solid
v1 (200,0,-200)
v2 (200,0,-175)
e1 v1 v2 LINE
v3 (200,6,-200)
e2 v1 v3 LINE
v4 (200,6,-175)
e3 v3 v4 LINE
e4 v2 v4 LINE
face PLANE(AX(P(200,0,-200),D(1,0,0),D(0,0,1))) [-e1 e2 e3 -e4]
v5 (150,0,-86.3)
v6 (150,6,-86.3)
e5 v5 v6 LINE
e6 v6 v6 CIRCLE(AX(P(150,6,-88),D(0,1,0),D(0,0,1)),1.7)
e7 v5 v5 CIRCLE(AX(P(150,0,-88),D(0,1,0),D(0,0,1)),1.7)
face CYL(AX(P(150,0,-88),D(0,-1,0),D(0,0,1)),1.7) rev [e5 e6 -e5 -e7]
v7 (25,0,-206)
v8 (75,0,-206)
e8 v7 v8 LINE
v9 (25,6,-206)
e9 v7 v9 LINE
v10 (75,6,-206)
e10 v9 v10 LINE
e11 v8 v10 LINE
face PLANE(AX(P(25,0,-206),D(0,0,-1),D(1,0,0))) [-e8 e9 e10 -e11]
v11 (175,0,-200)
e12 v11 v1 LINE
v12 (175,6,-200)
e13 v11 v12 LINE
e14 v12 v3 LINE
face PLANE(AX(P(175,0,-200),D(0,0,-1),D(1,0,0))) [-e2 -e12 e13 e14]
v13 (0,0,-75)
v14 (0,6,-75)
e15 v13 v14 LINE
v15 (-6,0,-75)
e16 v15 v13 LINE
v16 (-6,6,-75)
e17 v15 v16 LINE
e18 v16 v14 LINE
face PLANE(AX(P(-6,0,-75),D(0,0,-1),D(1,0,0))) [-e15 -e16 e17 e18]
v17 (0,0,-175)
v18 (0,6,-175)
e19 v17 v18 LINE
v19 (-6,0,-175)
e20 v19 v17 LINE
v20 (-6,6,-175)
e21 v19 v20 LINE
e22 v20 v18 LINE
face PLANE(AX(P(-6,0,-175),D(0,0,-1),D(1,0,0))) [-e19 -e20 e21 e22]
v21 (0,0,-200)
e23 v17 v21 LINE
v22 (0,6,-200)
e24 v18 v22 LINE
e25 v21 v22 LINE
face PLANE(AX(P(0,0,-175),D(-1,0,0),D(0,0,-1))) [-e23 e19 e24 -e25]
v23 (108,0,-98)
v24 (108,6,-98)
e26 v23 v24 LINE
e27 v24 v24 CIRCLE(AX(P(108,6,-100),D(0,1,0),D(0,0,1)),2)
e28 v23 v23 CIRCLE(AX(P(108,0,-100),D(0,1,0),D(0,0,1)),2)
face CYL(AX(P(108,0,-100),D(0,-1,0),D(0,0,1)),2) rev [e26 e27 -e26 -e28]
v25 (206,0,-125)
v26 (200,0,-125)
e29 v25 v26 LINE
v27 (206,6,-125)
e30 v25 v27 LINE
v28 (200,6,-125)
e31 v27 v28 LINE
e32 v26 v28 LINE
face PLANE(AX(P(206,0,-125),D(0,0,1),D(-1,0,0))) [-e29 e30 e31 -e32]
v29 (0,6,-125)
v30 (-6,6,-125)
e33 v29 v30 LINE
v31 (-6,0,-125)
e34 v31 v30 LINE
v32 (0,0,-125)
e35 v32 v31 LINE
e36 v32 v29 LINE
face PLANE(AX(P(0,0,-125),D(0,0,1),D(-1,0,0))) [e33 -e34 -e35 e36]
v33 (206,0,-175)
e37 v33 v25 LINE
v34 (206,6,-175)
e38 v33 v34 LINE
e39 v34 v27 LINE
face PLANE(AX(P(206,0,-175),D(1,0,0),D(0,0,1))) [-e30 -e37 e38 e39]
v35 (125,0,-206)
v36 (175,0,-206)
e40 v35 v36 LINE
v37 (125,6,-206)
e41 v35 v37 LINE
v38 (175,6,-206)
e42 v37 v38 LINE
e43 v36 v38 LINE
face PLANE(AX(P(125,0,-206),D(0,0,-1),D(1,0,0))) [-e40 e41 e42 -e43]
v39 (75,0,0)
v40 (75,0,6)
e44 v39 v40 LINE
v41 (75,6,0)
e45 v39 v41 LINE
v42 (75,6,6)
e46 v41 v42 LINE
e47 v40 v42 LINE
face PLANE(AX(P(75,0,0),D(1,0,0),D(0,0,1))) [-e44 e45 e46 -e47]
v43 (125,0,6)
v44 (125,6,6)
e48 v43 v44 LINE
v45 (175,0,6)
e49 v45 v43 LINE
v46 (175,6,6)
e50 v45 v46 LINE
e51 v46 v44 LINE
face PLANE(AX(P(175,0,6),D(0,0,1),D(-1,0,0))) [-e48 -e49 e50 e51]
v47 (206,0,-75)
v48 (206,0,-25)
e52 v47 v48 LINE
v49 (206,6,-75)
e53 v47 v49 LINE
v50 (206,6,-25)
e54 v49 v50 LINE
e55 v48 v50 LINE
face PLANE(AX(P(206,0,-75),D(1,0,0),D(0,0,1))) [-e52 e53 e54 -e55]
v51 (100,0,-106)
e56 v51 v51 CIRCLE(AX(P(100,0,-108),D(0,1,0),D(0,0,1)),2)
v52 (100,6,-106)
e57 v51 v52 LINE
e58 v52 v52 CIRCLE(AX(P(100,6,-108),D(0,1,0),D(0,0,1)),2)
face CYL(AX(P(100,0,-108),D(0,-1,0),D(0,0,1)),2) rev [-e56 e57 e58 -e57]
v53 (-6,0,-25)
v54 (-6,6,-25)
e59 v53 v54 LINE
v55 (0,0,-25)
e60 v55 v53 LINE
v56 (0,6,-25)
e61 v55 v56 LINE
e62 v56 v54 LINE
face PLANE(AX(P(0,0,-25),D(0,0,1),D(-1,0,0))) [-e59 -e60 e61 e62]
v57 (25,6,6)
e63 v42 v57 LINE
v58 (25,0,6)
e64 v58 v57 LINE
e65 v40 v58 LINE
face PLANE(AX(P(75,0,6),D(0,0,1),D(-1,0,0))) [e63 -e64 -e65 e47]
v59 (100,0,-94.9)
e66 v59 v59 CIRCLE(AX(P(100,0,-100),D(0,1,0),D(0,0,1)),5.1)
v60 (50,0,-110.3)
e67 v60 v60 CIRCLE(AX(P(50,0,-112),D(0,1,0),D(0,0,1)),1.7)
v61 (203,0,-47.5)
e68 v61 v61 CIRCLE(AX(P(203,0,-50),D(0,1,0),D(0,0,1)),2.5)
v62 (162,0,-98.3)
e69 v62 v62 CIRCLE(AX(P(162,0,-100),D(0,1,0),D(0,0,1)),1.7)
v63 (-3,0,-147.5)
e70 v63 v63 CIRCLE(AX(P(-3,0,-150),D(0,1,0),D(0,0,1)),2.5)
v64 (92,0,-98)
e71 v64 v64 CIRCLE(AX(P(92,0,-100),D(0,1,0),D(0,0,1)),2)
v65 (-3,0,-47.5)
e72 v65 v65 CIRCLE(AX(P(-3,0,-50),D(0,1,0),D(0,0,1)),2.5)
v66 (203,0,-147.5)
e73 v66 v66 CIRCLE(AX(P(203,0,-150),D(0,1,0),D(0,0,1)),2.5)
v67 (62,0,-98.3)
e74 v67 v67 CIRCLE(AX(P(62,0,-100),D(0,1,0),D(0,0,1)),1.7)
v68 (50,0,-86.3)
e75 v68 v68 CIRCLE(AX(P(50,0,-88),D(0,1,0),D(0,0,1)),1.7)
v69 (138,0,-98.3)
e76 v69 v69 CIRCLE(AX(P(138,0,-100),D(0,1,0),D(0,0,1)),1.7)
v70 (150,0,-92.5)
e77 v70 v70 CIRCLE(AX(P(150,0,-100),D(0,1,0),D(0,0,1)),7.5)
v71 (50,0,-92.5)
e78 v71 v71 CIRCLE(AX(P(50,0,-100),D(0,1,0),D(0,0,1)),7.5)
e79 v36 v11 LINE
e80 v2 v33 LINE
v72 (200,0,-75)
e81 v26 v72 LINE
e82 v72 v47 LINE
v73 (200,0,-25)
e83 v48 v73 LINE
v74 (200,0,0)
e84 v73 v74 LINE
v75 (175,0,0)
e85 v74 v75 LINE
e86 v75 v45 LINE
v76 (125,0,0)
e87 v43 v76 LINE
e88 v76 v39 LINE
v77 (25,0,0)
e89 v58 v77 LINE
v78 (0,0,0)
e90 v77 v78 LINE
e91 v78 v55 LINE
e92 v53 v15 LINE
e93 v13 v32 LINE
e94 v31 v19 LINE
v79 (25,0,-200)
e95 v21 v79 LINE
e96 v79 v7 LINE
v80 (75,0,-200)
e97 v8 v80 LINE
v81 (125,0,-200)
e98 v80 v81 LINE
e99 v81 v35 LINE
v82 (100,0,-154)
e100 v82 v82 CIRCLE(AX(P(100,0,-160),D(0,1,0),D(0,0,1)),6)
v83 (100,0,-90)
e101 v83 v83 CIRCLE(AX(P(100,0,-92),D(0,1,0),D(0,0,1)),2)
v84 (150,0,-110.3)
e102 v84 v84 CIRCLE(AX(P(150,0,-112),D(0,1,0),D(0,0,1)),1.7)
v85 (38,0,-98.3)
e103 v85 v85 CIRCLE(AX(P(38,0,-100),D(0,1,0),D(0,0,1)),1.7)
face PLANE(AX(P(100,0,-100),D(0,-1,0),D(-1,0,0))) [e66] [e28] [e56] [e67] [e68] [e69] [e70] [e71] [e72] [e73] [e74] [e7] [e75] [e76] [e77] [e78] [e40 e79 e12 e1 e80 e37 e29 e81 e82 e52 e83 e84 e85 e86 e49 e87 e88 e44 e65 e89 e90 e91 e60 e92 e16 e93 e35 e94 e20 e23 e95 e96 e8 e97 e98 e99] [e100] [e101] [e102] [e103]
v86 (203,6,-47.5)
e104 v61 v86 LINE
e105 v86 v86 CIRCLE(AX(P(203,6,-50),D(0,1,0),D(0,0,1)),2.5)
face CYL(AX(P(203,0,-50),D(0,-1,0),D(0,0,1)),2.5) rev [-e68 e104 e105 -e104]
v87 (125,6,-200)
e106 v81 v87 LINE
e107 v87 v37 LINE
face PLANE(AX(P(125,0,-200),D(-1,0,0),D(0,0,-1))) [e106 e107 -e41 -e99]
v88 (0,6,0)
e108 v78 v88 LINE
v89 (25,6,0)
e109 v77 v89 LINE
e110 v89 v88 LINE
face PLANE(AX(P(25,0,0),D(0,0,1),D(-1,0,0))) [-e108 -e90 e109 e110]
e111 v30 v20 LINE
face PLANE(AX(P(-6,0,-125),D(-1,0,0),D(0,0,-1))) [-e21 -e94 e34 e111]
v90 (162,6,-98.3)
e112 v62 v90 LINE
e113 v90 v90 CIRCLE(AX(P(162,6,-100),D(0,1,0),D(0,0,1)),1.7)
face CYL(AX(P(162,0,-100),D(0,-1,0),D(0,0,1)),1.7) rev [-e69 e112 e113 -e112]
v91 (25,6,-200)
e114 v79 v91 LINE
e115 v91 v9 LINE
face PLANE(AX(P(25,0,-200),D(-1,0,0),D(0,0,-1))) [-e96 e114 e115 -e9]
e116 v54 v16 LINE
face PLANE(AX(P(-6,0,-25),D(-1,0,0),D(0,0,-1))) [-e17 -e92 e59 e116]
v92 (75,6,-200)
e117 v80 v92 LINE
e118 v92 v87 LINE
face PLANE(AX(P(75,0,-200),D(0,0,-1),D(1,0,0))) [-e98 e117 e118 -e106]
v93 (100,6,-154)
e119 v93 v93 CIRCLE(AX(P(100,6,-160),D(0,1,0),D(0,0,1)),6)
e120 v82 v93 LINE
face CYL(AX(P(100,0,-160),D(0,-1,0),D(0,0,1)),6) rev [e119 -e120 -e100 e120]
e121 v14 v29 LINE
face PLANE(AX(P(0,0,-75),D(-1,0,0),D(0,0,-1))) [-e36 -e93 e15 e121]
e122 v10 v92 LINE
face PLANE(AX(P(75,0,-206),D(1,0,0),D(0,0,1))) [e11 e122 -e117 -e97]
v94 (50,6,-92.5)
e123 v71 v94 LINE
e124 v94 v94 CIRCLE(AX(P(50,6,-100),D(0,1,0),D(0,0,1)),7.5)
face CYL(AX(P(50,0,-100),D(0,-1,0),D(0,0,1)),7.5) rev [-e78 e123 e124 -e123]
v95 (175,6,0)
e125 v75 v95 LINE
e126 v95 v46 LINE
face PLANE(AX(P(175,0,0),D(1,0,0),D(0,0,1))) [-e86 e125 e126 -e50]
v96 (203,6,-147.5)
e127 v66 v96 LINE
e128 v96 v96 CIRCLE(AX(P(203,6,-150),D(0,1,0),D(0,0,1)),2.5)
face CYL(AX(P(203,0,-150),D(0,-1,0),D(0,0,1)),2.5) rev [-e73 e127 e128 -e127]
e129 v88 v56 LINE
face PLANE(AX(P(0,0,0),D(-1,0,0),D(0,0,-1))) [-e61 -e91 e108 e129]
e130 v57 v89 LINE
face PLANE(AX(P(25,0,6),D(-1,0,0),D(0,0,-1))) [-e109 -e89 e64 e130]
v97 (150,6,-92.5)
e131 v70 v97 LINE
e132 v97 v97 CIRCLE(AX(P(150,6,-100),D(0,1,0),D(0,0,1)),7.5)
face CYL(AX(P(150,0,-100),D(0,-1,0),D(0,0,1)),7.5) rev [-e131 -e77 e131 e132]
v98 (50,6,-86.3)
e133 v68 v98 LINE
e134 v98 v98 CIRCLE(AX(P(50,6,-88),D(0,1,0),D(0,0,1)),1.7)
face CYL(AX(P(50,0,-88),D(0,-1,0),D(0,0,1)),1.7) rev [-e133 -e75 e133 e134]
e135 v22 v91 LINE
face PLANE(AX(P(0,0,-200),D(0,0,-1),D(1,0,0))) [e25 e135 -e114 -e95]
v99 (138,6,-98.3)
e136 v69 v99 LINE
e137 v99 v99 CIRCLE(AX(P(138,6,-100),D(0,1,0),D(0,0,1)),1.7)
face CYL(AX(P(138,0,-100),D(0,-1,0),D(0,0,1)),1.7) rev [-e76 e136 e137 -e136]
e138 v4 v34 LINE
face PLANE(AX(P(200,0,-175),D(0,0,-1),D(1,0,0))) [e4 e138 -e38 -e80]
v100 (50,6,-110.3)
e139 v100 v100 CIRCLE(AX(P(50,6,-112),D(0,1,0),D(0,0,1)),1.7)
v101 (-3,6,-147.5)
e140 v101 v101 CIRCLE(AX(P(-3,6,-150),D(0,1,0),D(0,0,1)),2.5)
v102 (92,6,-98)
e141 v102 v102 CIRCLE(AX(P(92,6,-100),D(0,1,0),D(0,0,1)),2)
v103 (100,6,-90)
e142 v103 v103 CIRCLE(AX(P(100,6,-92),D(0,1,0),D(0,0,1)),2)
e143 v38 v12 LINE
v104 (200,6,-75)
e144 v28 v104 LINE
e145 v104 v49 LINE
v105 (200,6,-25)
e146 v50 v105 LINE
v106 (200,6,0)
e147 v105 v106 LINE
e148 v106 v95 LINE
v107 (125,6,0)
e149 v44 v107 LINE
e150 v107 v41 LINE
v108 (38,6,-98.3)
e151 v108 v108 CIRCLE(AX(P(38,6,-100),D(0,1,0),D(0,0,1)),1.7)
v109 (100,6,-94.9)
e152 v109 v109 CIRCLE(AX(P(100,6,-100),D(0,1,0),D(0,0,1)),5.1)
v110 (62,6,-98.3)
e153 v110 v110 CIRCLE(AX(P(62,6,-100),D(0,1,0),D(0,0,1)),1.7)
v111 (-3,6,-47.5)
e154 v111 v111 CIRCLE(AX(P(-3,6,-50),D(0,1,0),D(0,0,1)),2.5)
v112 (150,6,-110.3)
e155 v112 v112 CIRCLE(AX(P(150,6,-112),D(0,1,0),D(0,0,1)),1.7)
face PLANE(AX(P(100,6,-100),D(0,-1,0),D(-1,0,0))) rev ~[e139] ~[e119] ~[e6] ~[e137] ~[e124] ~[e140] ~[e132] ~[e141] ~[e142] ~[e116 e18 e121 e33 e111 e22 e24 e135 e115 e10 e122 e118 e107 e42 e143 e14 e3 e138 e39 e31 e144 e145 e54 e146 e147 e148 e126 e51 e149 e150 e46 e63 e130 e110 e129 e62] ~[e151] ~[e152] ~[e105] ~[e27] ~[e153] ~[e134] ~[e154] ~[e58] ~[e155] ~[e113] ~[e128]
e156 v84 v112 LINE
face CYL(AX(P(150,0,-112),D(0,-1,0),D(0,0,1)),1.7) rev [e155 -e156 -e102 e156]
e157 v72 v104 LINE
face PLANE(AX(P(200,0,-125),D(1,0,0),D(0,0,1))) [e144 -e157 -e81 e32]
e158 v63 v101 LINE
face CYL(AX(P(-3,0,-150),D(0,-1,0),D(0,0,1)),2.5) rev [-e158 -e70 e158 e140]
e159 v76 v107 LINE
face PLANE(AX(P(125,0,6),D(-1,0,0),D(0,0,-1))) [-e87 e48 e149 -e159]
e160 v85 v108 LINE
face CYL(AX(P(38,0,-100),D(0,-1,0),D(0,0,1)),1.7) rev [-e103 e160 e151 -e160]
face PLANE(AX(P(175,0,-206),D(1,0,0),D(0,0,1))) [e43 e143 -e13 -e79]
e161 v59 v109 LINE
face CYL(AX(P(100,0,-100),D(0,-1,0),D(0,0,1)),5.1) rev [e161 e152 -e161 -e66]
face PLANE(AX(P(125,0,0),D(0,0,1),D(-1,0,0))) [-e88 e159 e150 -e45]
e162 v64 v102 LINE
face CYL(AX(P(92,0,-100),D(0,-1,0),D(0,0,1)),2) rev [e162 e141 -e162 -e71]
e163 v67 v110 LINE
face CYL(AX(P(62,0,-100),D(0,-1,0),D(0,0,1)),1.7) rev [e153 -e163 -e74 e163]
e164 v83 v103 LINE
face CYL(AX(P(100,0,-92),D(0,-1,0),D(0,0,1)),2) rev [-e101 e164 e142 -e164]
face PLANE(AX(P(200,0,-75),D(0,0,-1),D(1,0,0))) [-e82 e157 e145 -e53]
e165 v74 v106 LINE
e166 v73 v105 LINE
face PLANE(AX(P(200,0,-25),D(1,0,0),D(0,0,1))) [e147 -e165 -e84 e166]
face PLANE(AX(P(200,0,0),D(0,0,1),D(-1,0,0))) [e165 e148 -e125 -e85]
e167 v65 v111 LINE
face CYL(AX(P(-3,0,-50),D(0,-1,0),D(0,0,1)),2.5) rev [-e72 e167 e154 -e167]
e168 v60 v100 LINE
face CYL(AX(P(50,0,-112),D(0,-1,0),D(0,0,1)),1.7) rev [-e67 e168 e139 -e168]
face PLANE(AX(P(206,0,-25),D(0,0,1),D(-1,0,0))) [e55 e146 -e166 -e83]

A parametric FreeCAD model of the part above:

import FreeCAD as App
import Part
import Sketcher
from FreeCAD import Vector


def add_polygon(sketch, points):
    """Adds a closed chain of lines whose ends are joined by coincident constraints."""
    first, n = sketch.GeometryCount, len(points)
    for a, b in zip(points, points[1:] + points[:1]):
        sketch.addGeometry(Part.LineSegment(App.Vector(*a, 0), App.Vector(*b, 0)), False)
    for i in range(n):
        sketch.addConstraint(Sketcher.Constraint("Coincident", first + i, 2, first + (i + 1) % n, 1))

doc = App.newDocument("Part")
params = doc.addObject("Spreadsheet::Sheet", "Params")
for row, (alias, value) in enumerate([
    ("sketch1_diameter", "5 mm"),
    ("sketch1_diameter2", "15 mm"),
    ("sketch1_diameter3", "4 mm"),
    ("sketch1_diameter4", "12 mm"),
    ("sketch1_diameter5", "3.4 mm"),
    ("pad1_length", "6 mm"),
], start=1):
    params.set(f"A{row}", alias)
    params.set(f"B{row}", "=" + value)
    params.setAlias(f"B{row}", alias)

body = doc.addObject("PartDesign::Body", "Body")

# Sketch on XZ plane
sketch1 = body.newObject("Sketcher::SketchObject", "Sketch")
sketch1.AttachmentSupport = (doc.getObject("XZ_Plane"), [""])
sketch1.MapMode = "FlatFace"
add_polygon(sketch1, [(25, -200), (0, -200), (0, -175), (-6, -175), (-6, -125), (0, -125), (0, -75), (-6, -75), (-6, -25), (0, -25), (0, 0), (25, 0), (25, 6), (75, 6), (75, 0), (125, 0), (125, 6), (175, 6), (175, 0), (200, 0), (200, -25), (206, -25), (206, -75), (200, -75), (200, -125), (206, -125), (206, -175), (200, -175), (200, -200), (175, -200), (175, -206), (125, -206), (125, -200), (75, -200), (75, -206), (25, -206)])  # lines 0-35
sketch1.addGeometry(Part.Circle(Vector(203, -50, 0), Vector(0, 0, 1), 2.5), False)  # 36
sketch1.addGeometry(Part.Circle(Vector(162, -100, 0), Vector(0, 0, 1), 1.7), False)  # 37
sketch1.addGeometry(Part.Circle(Vector(150, -88, 0), Vector(0, 0, 1), 1.7), False)  # 38
sketch1.addGeometry(Part.Circle(Vector(150, -100, 0), Vector(0, 0, 1), 7.5), False)  # 39
sketch1.addGeometry(Part.Circle(Vector(138, -100, 0), Vector(0, 0, 1), 1.7), False)  # 40
sketch1.addGeometry(Part.Circle(Vector(108, -100, 0), Vector(0, 0, 1), 2), False)  # 41
sketch1.addGeometry(Part.Circle(Vector(-3, -50, 0), Vector(0, 0, 1), 2.5), False)  # 42
sketch1.addGeometry(Part.Circle(Vector(50, -88, 0), Vector(0, 0, 1), 1.7), False)  # 43
sketch1.addGeometry(Part.Circle(Vector(100, -92, 0), Vector(0, 0, 1), 2), False)  # 44
sketch1.addGeometry(Part.Circle(Vector(100, -100, 0), Vector(0, 0, 1), 5.1), False)  # 45
sketch1.addGeometry(Part.Circle(Vector(92, -100, 0), Vector(0, 0, 1), 2), False)  # 46
sketch1.addGeometry(Part.Circle(Vector(62, -100, 0), Vector(0, 0, 1), 1.7), False)  # 47
sketch1.addGeometry(Part.Circle(Vector(50, -100, 0), Vector(0, 0, 1), 7.5), False)  # 48
sketch1.addGeometry(Part.Circle(Vector(38, -100, 0), Vector(0, 0, 1), 1.7), False)  # 49
sketch1.addGeometry(Part.Circle(Vector(150, -112, 0), Vector(0, 0, 1), 1.7), False)  # 50
sketch1.addGeometry(Part.Circle(Vector(203, -150, 0), Vector(0, 0, 1), 2.5), False)  # 51
sketch1.addGeometry(Part.Circle(Vector(100, -108, 0), Vector(0, 0, 1), 2), False)  # 52
sketch1.addGeometry(Part.Circle(Vector(50, -112, 0), Vector(0, 0, 1), 1.7), False)  # 53
sketch1.addGeometry(Part.Circle(Vector(100, -160, 0), Vector(0, 0, 1), 6), False)  # 54
sketch1.addGeometry(Part.Circle(Vector(-3, -150, 0), Vector(0, 0, 1), 2.5), False)  # 55
sketch1.addConstraint([
    Sketcher.Constraint("Horizontal", 0),
    Sketcher.Constraint("Vertical", 1),
    Sketcher.Constraint("Horizontal", 2),
    Sketcher.Constraint("Vertical", 3),
    Sketcher.Constraint("Horizontal", 4),
    Sketcher.Constraint("Vertical", 5),
    Sketcher.Constraint("Horizontal", 6),
    Sketcher.Constraint("Vertical", 7),
    Sketcher.Constraint("Horizontal", 8),
    Sketcher.Constraint("Vertical", 9),
    Sketcher.Constraint("Horizontal", 10),
    Sketcher.Constraint("Vertical", 11),
    Sketcher.Constraint("Horizontal", 12),
    Sketcher.Constraint("Vertical", 13),
    Sketcher.Constraint("Horizontal", 14),
    Sketcher.Constraint("Vertical", 15),
    Sketcher.Constraint("Horizontal", 16),
    Sketcher.Constraint("Vertical", 17),
    Sketcher.Constraint("Horizontal", 18),
    Sketcher.Constraint("Vertical", 19),
    Sketcher.Constraint("Horizontal", 20),
    Sketcher.Constraint("Vertical", 21),
    Sketcher.Constraint("Horizontal", 22),
    Sketcher.Constraint("Vertical", 23),
    Sketcher.Constraint("Horizontal", 24),
    Sketcher.Constraint("Vertical", 25),
    Sketcher.Constraint("Horizontal", 26),
    Sketcher.Constraint("Vertical", 27),
    Sketcher.Constraint("Horizontal", 28),
    Sketcher.Constraint("Vertical", 29),
    Sketcher.Constraint("Horizontal", 30),
    Sketcher.Constraint("Vertical", 31),
    Sketcher.Constraint("Horizontal", 32),
    Sketcher.Constraint("Vertical", 33),
    Sketcher.Constraint("Horizontal", 34),
    Sketcher.Constraint("Vertical", 35),
    Sketcher.Constraint("Coincident", 9, 2, -1, 1),
    Sketcher.Constraint("Equal", 37, 38),
    Sketcher.Constraint("Equal", 38, 40),
    Sketcher.Constraint("Equal", 36, 42),
    Sketcher.Constraint("Equal", 40, 43),
    Sketcher.Constraint("Equal", 41, 44),
    Sketcher.Constraint("Equal", 44, 46),
    Sketcher.Constraint("Equal", 43, 47),
    Sketcher.Constraint("Equal", 39, 48),
    Sketcher.Constraint("Equal", 47, 49),
    Sketcher.Constraint("Equal", 49, 50),
    Sketcher.Constraint("Equal", 42, 51),
    Sketcher.Constraint("Equal", 46, 52),
    Sketcher.Constraint("Equal", 50, 53),
    Sketcher.Constraint("Equal", 51, 55),
    Sketcher.Constraint("PointOnObject", 0, 2, -2),
    Sketcher.Constraint("PointOnObject", 4, 2, -2),
    Sketcher.Constraint("PointOnObject", 13, 2, -1),
    Sketcher.Constraint("PointOnObject", 17, 2, -1),
    Sketcher.Constraint("Horizontal", 37, 3, 39, 3),
    Sketcher.Constraint("Horizontal", 39, 3, 40, 3),
    Sketcher.Constraint("Horizontal", 40, 3, 41, 3),
    Sketcher.Constraint("Horizontal", 36, 3, 42, 3),
    Sketcher.Constraint("Horizontal", 38, 3, 43, 3),
    Sketcher.Constraint("Horizontal", 41, 3, 45, 3),
    Sketcher.Constraint("Horizontal", 45, 3, 46, 3),
    Sketcher.Constraint("Horizontal", 46, 3, 47, 3),
    Sketcher.Constraint("Horizontal", 47, 3, 48, 3),
    Sketcher.Constraint("Horizontal", 48, 3, 49, 3),
    Sketcher.Constraint("Horizontal", 50, 3, 53, 3),
    Sketcher.Constraint("Horizontal", 51, 3, 55, 3),
    Sketcher.Constraint("Horizontal", 12, 2, 15, 2),
    Sketcher.Constraint("Horizontal", 8, 2, 19, 2),
    Sketcher.Constraint("Horizontal", 6, 2, 21, 2),
    Sketcher.Constraint("Horizontal", 4, 2, 23, 2),
    Sketcher.Constraint("Horizontal", 2, 2, 25, 2),
    Sketcher.Constraint("Horizontal", 0, 2, 27, 2),
    Sketcher.Constraint("Horizontal", 28, 2, 31, 2),
    Sketcher.Constraint("Horizontal", 30, 2, 33, 2),
    Sketcher.Constraint("Vertical", 38, 3, 39, 3),
    Sketcher.Constraint("Vertical", 44, 3, 45, 3),
    Sketcher.Constraint("Vertical", 43, 3, 48, 3),
    Sketcher.Constraint("Vertical", 39, 3, 50, 3),
    Sketcher.Constraint("Vertical", 36, 3, 51, 3),
    Sketcher.Constraint("Vertical", 45, 3, 52, 3),
    Sketcher.Constraint("Vertical", 48, 3, 53, 3),
    Sketcher.Constraint("Vertical", 52, 3, 54, 3),
    Sketcher.Constraint("Vertical", 42, 3, 55, 3),
    Sketcher.Constraint("Vertical", 3, 2, 6, 2),
    Sketcher.Constraint("Vertical", 19, 2, 22, 2),
    Sketcher.Constraint("Vertical", 21, 2, 24, 2),
    Sketcher.Constraint("Vertical", 23, 2, 26, 2),
    Sketcher.Constraint("Vertical", 17, 2, 28, 2),
    Sketcher.Constraint("Vertical", 15, 2, 30, 2),
    Sketcher.Constraint("Vertical", 13, 2, 32, 2),
    Sketcher.Constraint("Vertical", 11, 2, 34, 2),
    Sketcher.Constraint("Equal", 12, 14),
    Sketcher.Constraint("Equal", 14, 16),
    Sketcher.Constraint("Equal", 10, 18),
    Sketcher.Constraint("Equal", 8, 20),
    Sketcher.Constraint("Equal", 28, 1),
    Sketcher.Constraint("Equal", 34, 3),
    Sketcher.Constraint("Equal", 3, 5),
    Sketcher.Constraint("Equal", 5, 7),
    Sketcher.Constraint("Equal", 1, 9),
    Sketcher.Constraint("Equal", 26, 11),
    Sketcher.Constraint("Equal", 17, 29),
    Sketcher.Constraint("Diameter", 36, 5.0),
    Sketcher.Constraint("Diameter", 39, 15.0),
    Sketcher.Constraint("Diameter", 41, 4.0),
    Sketcher.Constraint("Diameter", 54, 12.0),
    Sketcher.Constraint("Diameter", 37, 3.4),
    Sketcher.Constraint("Diameter", 45, 10.2),
    Sketcher.Constraint("DistanceX", 0, 2, 0, 1, 25.0),
    Sketcher.Constraint("DistanceX", 2, 2, 2, 1, 6.0),
    Sketcher.Constraint("DistanceX", 12, 1, 12, 2, 50.0),
    Sketcher.Constraint("DistanceX", -1, 1, 36, 3, 203.0),
    Sketcher.Constraint("DistanceY", 36, 3, -1, 1, 50.0),
    Sketcher.Constraint("DistanceX", -1, 1, 37, 3, 162.0),
    Sketcher.Constraint("DistanceY", 37, 3, -1, 1, 100.0),
    Sketcher.Constraint("DistanceX", -1, 1, 38, 3, 150.0),
    Sketcher.Constraint("DistanceY", 38, 3, -1, 1, 88.0),
    Sketcher.Constraint("DistanceX", -1, 1, 40, 3, 138.0),
    Sketcher.Constraint("DistanceX", -1, 1, 41, 3, 108.0),
    Sketcher.Constraint("DistanceX", 42, 3, -1, 1, 3.0),
    Sketcher.Constraint("DistanceX", -1, 1, 43, 3, 50.0),
    Sketcher.Constraint("DistanceX", -1, 1, 44, 3, 100.0),
    Sketcher.Constraint("DistanceY", 44, 3, -1, 1, 92.0),
    Sketcher.Constraint("DistanceX", -1, 1, 46, 3, 92.0),
    Sketcher.Constraint("DistanceX", -1, 1, 47, 3, 62.0),
    Sketcher.Constraint("DistanceX", -1, 1, 49, 3, 38.0),
    Sketcher.Constraint("DistanceY", 50, 3, -1, 1, 112.0),
    Sketcher.Constraint("DistanceY", 51, 3, -1, 1, 150.0),
    Sketcher.Constraint("DistanceY", 52, 3, -1, 1, 108.0),
    Sketcher.Constraint("DistanceY", 54, 3, -1, 1, 160.0),
])
sketch1.setExpression("Constraints[139]", "Params.sketch1_diameter")
sketch1.setExpression("Constraints[140]", "Params.sketch1_diameter2")
sketch1.setExpression("Constraints[141]", "Params.sketch1_diameter3")
sketch1.setExpression("Constraints[142]", "Params.sketch1_diameter4")
sketch1.setExpression("Constraints[143]", "Params.sketch1_diameter5")
pad1 = body.newObject("PartDesign::Pad", "Pad")
pad1.Profile = sketch1
pad1.setExpression("Length", "Params.pad1_length")
pad1.Reversed = True

doc.recompute()
